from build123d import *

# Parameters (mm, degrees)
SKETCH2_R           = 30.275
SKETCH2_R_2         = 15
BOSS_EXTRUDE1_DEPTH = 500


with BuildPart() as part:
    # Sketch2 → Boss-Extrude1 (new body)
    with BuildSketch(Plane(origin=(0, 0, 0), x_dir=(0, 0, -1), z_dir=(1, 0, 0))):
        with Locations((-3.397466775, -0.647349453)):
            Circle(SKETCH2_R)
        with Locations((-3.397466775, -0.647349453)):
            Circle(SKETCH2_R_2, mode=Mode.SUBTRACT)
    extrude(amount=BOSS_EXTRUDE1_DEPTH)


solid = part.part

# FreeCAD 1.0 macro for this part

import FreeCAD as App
import Part
import Sketcher
from FreeCAD import Vector

doc = App.newDocument("Part")
body = doc.addObject("PartDesign::Body", "Body")

sketch1 = body.newObject("Sketcher::SketchObject", "Sketch")
sketch1.AttachmentSupport = (doc.getObject("YZ_Plane"), [""])
sketch1.MapMode = "FlatFace"
sketch1.addGeometry([
    Part.Circle(Vector(-1, 3, 0), Vector(0, 0, 1), 30),
    Part.Circle(Vector(-1, 3, 0), Vector(0, 0, 1), 15),
], False)
sketch1.addConstraint([
    Sketcher.Constraint("Coincident", 1, 3, 0, 3),
    Sketcher.Constraint("Diameter", 1, 30.0),
    Sketcher.Constraint("Diameter", 0, 60.55),
    Sketcher.Constraint("DistanceX", 0, 3, -1, 1, 0.647349),
    Sketcher.Constraint("DistanceY", -1, 1, 0, 3, 3.397467),
])
pad1 = body.newObject("PartDesign::Pad", "Pad")
pad1.Profile = sketch1
pad1.Length = 500

doc.recompute()
